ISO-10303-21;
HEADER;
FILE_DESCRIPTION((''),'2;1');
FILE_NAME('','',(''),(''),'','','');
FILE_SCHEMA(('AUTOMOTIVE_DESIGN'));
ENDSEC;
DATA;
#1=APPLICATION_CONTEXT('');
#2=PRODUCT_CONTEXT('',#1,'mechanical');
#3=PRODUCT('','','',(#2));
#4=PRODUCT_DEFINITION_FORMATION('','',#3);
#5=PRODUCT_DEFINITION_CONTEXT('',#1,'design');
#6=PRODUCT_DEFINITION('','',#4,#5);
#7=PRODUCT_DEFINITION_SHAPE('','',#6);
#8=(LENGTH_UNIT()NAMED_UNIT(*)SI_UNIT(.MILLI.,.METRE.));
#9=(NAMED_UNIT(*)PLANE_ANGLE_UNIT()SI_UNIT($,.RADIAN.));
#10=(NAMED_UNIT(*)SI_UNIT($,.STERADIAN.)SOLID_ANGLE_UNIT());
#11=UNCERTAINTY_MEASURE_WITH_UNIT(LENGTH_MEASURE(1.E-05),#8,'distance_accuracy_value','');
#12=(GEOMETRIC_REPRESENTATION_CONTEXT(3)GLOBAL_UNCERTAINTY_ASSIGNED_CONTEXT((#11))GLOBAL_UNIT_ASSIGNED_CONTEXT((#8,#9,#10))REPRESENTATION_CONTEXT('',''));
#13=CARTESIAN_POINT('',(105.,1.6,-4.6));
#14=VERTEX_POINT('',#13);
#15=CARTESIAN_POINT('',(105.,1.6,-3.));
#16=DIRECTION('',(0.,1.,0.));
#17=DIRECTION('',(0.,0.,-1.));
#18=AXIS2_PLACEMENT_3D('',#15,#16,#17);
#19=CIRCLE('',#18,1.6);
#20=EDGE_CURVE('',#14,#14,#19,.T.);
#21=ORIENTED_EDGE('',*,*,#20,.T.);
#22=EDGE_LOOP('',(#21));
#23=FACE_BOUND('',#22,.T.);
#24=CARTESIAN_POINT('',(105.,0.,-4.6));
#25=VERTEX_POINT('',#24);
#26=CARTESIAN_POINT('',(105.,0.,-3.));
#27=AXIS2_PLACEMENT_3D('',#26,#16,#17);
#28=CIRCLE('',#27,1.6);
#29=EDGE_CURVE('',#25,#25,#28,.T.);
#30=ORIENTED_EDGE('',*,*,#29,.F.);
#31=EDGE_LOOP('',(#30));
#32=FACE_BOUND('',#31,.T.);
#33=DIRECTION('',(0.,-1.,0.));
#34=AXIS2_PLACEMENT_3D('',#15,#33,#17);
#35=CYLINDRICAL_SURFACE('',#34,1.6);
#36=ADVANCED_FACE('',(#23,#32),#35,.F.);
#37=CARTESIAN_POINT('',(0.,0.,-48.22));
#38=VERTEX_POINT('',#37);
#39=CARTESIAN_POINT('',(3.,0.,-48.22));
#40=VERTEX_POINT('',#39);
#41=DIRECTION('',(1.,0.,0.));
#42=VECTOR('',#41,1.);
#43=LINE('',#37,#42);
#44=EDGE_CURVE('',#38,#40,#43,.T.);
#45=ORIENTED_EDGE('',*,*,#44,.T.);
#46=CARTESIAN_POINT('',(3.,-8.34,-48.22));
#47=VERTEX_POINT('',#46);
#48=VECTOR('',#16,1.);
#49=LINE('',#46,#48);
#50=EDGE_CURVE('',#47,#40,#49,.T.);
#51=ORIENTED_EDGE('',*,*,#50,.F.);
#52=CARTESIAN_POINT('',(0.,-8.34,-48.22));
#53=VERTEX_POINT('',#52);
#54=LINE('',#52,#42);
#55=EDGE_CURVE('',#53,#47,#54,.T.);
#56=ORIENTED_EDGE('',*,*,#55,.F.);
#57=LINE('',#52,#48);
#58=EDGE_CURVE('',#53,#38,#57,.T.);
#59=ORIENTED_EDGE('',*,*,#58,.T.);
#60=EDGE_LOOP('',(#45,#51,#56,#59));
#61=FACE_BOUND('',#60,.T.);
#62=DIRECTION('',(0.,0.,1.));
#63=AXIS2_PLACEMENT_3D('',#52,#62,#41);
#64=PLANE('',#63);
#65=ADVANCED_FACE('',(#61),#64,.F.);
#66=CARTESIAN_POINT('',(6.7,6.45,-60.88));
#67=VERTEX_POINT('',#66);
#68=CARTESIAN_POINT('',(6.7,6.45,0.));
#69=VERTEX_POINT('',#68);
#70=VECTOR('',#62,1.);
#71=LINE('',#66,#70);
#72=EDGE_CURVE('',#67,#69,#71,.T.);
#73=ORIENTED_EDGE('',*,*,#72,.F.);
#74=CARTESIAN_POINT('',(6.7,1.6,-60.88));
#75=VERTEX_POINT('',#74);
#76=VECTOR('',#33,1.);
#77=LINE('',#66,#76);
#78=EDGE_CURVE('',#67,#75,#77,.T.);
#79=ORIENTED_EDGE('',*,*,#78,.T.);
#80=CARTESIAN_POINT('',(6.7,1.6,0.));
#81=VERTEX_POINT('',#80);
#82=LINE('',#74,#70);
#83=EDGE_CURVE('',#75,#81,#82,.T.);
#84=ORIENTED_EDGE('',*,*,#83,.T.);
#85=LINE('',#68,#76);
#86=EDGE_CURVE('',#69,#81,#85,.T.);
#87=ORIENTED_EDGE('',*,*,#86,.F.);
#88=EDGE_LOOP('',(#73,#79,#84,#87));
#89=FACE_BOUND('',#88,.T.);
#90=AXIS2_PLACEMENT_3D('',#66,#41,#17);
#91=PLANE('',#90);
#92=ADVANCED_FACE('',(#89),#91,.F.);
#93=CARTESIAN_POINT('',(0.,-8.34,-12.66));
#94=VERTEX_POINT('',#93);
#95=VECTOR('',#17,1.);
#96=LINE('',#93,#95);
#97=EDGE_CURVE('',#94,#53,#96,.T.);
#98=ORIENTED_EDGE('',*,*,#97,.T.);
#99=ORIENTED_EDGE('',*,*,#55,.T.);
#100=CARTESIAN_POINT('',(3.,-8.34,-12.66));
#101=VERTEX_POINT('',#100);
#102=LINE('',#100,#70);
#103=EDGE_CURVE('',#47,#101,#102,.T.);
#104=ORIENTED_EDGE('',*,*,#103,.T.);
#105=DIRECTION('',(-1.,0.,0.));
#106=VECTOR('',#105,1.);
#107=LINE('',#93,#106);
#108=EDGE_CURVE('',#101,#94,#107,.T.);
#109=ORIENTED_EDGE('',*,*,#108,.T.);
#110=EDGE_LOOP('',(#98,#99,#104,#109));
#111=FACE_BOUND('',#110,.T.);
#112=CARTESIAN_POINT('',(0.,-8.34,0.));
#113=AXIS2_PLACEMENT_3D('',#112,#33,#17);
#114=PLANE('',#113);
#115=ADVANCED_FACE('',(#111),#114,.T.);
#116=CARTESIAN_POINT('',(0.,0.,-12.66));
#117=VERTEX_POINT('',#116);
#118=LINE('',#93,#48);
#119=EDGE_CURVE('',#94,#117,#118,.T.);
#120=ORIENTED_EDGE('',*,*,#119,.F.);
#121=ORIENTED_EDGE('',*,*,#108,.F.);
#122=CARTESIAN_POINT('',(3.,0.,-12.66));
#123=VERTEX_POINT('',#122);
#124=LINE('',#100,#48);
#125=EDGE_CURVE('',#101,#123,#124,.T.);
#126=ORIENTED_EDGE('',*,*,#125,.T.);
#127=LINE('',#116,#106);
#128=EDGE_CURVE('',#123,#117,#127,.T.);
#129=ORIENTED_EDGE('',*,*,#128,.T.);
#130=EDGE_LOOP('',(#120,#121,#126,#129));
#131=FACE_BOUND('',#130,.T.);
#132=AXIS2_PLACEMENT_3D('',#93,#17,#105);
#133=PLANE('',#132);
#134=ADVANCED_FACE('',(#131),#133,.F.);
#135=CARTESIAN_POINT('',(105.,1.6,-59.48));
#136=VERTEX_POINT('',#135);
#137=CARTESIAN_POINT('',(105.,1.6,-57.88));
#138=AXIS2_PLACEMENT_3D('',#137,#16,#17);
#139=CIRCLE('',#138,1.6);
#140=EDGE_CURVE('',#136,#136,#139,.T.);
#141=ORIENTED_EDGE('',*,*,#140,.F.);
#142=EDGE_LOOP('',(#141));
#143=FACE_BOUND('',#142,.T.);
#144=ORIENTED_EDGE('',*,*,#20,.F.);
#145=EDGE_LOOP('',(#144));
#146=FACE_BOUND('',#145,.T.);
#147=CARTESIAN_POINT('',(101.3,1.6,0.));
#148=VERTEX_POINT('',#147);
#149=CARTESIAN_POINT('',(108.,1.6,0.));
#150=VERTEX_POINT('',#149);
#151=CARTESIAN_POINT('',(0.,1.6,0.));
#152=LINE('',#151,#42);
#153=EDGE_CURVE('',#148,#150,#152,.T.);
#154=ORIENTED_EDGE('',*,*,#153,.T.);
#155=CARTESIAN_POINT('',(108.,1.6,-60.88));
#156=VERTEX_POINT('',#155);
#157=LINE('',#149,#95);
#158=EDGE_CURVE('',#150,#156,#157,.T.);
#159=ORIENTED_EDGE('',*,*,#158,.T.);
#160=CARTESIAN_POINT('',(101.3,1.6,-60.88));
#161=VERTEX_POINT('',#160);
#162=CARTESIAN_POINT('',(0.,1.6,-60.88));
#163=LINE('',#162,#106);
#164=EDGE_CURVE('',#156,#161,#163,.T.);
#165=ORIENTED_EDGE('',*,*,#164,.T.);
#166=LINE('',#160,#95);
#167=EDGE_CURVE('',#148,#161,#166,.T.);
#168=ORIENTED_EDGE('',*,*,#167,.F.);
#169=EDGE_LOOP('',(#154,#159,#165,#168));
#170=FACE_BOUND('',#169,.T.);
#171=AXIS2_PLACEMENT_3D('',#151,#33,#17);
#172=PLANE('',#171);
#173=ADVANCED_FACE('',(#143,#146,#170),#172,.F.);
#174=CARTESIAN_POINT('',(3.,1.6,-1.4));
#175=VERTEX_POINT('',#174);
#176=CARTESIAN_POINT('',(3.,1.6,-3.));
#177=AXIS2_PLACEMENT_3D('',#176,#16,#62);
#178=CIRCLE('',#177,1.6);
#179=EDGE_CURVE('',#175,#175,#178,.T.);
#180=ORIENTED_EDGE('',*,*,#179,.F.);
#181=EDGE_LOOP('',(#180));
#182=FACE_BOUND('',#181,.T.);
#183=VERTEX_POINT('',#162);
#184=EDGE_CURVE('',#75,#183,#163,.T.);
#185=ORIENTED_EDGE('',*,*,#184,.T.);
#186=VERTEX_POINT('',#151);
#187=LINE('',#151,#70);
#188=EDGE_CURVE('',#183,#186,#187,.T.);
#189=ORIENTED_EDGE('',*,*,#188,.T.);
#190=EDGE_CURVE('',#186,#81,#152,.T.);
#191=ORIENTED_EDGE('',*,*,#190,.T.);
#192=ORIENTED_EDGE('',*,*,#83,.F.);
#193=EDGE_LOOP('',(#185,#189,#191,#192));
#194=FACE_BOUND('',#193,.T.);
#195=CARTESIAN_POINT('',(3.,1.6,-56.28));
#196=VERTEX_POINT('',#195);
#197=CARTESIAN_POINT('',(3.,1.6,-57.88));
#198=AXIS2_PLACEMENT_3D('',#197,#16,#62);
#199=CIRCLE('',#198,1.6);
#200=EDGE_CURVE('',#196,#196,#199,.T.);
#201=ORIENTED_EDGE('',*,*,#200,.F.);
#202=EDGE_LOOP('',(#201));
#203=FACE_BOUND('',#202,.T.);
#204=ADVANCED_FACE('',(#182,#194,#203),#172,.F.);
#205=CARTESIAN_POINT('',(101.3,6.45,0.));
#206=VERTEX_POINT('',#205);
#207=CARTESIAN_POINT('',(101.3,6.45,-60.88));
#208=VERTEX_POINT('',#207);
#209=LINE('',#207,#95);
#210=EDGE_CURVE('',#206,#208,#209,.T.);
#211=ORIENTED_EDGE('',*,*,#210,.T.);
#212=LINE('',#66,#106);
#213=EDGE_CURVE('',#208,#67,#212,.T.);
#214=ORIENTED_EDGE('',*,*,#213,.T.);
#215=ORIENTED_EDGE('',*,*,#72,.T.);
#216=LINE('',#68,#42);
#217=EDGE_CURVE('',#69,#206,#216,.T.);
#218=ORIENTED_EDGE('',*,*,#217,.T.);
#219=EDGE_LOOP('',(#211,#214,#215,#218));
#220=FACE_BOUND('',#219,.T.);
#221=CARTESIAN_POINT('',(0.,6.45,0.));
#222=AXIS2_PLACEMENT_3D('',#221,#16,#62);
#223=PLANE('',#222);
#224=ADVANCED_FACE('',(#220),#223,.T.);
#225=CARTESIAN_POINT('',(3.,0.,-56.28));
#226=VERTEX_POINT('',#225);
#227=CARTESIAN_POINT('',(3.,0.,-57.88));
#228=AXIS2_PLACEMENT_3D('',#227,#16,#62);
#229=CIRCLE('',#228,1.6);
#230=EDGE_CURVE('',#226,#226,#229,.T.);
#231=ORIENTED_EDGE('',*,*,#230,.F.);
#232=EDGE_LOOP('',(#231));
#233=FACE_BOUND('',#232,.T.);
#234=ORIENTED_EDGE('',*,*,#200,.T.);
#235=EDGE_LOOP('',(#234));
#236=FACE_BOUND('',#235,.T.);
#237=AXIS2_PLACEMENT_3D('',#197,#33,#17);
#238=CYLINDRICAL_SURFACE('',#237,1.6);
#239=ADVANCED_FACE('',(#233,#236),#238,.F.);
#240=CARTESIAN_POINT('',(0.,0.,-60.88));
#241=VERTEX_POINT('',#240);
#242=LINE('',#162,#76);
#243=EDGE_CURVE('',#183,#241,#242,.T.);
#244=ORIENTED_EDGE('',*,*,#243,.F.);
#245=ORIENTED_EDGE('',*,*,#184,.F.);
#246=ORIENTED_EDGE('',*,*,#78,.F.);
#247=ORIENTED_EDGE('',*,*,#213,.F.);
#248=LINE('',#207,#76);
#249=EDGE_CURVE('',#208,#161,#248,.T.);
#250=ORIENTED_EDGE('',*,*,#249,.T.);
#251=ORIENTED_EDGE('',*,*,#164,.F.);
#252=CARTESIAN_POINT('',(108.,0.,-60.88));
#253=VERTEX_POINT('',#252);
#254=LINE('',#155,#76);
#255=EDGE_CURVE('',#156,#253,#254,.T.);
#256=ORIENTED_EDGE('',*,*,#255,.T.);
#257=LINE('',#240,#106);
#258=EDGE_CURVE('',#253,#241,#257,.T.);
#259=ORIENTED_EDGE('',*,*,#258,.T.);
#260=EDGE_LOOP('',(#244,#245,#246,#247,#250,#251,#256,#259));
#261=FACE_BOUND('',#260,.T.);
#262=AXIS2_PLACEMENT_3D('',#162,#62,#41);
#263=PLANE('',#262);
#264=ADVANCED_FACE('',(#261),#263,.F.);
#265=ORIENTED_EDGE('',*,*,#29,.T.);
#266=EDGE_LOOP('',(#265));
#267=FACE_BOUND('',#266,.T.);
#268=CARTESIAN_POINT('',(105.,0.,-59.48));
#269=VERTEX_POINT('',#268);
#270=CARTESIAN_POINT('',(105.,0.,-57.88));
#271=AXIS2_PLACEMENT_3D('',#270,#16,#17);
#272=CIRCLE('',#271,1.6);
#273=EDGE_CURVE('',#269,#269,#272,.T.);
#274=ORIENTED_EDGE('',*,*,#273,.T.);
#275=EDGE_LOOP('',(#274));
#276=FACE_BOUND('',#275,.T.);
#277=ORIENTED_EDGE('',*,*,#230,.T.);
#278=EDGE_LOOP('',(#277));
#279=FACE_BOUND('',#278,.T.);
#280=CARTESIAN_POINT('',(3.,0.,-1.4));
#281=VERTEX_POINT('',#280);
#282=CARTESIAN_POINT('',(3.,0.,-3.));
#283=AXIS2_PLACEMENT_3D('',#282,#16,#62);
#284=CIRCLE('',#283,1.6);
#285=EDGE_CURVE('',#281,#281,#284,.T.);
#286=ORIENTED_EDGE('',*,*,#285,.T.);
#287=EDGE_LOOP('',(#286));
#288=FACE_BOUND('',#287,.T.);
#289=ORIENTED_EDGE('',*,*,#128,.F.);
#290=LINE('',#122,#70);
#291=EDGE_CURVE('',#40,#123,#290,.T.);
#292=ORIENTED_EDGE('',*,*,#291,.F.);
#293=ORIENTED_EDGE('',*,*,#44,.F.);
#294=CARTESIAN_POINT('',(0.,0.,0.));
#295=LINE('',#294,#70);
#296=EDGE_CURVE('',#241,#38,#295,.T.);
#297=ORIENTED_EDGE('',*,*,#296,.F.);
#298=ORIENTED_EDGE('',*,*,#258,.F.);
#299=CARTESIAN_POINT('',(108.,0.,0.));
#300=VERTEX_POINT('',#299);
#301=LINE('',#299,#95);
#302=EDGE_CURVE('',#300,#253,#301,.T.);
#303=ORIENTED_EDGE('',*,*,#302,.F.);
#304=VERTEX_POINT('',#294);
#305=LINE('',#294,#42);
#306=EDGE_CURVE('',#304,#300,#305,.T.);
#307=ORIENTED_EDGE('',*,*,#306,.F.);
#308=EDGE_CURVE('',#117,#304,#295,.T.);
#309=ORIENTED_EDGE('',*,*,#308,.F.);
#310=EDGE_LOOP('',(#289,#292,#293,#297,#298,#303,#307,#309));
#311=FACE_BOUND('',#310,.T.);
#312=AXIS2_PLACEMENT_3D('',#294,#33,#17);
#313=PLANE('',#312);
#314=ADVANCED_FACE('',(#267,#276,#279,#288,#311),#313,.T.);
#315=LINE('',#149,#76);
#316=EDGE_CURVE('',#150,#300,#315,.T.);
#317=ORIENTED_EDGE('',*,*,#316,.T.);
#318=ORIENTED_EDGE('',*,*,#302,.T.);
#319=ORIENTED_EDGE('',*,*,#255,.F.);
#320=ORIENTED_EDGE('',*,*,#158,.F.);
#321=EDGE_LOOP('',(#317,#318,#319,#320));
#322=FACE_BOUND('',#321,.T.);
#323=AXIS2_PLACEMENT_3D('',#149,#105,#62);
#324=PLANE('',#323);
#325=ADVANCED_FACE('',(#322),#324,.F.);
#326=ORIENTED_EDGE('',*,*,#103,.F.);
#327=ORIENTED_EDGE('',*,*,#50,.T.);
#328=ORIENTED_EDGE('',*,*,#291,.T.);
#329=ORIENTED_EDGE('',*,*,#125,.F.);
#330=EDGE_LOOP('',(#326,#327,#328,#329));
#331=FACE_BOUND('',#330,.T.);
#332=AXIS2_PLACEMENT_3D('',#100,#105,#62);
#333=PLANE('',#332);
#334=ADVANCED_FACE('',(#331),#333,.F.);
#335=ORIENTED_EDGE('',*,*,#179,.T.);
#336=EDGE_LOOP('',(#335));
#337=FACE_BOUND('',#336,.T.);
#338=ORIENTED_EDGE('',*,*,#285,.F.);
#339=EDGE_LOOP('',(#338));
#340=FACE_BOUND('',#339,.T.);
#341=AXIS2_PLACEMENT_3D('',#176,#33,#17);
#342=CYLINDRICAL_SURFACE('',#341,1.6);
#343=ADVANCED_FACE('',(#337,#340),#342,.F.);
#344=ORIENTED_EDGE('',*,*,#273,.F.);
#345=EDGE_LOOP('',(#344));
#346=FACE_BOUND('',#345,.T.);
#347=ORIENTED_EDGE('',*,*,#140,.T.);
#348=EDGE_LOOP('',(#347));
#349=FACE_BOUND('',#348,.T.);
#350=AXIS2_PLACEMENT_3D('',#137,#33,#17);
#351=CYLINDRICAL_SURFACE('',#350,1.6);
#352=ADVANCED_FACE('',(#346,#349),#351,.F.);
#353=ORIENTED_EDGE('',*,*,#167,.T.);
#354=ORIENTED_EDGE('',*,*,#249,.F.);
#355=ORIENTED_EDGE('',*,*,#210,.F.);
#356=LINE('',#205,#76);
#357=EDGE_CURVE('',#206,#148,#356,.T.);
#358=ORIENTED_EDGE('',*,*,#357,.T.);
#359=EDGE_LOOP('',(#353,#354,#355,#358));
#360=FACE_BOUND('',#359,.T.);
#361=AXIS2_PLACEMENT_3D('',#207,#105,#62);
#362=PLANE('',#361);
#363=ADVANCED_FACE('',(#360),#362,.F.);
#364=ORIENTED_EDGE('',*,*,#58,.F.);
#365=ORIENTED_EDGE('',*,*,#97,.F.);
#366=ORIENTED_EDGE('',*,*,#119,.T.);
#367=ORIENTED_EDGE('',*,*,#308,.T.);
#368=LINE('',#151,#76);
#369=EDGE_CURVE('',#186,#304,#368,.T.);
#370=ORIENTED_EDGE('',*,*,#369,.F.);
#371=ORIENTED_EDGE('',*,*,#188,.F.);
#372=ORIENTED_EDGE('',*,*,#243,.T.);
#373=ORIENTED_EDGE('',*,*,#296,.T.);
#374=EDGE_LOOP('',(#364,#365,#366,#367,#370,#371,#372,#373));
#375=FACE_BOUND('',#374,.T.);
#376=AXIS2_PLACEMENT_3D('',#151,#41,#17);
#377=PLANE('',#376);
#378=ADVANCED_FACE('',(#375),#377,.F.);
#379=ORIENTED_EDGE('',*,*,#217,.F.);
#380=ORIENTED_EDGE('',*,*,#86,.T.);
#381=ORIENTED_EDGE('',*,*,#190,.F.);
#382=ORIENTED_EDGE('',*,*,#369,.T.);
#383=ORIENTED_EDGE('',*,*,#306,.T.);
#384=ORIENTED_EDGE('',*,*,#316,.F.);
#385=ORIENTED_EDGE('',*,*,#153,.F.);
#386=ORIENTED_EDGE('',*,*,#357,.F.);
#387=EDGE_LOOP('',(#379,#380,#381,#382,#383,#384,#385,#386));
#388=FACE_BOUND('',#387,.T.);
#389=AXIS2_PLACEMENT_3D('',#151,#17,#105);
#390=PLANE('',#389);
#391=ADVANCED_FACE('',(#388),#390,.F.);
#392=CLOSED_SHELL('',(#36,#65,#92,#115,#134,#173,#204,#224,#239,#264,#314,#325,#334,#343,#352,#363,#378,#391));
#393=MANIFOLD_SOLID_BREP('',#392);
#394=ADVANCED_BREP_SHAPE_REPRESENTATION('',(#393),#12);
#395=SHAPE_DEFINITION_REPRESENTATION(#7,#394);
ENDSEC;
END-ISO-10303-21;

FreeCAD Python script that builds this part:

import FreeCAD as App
import Part
import Sketcher
from FreeCAD import Vector
Q = App.Units.Quantity

doc = App.newDocument("Part")
body = doc.addObject("PartDesign::Body", "Body")

# Sketch on XZ plane
sketch1 = body.newObject("Sketcher::SketchObject", "Sketch")
sketch1.AttachmentSupport = (doc.getObject("XZ_Plane"), [""])
sketch1.MapMode = "FlatFace"
sketch1.addGeometry(Part.LineSegment(Vector(0, -60.9, 0), Vector(0, 0, 0)), False)
sketch1.addGeometry(Part.LineSegment(Vector(0, 0, 0), Vector(108, 0, 0)), False)
sketch1.addGeometry(Part.LineSegment(Vector(108, 0, 0), Vector(108, -60.9, 0)), False)
sketch1.addGeometry(Part.LineSegment(Vector(108, -60.9, 0), Vector(0, -60.9, 0)), False)
sketch1.addGeometry(Part.Circle(Vector(3, -3, 0), Vector(0, 0, 1), 1.6), False)
sketch1.addGeometry(Part.Circle(Vector(105, -3, 0), Vector(0, 0, 1), 1.6), False)
sketch1.addGeometry(Part.Circle(Vector(3, -57.9, 0), Vector(0, 0, 1), 1.6), False)
sketch1.addGeometry(Part.Circle(Vector(105, -57.9, 0), Vector(0, 0, 1), 1.6), False)
sketch1.addConstraint(Sketcher.Constraint("Coincident", 0, 2, 1, 1))
sketch1.addConstraint(Sketcher.Constraint("Coincident", 1, 2, 2, 1))
sketch1.addConstraint(Sketcher.Constraint("Coincident", 2, 2, 3, 1))
sketch1.addConstraint(Sketcher.Constraint("Coincident", 3, 2, 0, 1))
sketch1.addConstraint(Sketcher.Constraint("Vertical", 0))
sketch1.addConstraint(Sketcher.Constraint("Horizontal", 1))
sketch1.addConstraint(Sketcher.Constraint("Vertical", 2))
sketch1.addConstraint(Sketcher.Constraint("Horizontal", 3))
sketch1.addConstraint(Sketcher.Constraint("Coincident", 0, 2, -1, 1))
sketch1.addConstraint(Sketcher.Constraint("Equal", 4, 5))
sketch1.addConstraint(Sketcher.Constraint("Equal", 5, 6))
sketch1.addConstraint(Sketcher.Constraint("Equal", 6, 7))
sketch1.addConstraint(Sketcher.Constraint("Horizontal", 4, 3, 5, 3))
sketch1.addConstraint(Sketcher.Constraint("Horizontal", 6, 3, 7, 3))
sketch1.addConstraint(Sketcher.Constraint("Vertical", 4, 3, 6, 3))
sketch1.addConstraint(Sketcher.Constraint("Vertical", 5, 3, 7, 3))
sketch1.addConstraint(Sketcher.Constraint("Diameter", 4, Q("3.2 mm")))
sketch1.addConstraint(Sketcher.Constraint("DistanceX", 1, 1, 1, 2, Q("108 mm")))
sketch1.addConstraint(Sketcher.Constraint("DistanceX", -1, 1, 4, 3, Q("3 mm")))
sketch1.addConstraint(Sketcher.Constraint("DistanceY", 4, 3, -1, 1, Q("3 mm")))
sketch1.addConstraint(Sketcher.Constraint("DistanceX", -1, 1, 5, 3, Q("105 mm")))
sketch1.addConstraint(Sketcher.Constraint("DistanceY", 2, 2, 7, 3, Q("3 mm")))
sketch1.addConstraint(Sketcher.Constraint("DistanceY", 0, 1, 0, 2, Q("60.88 mm")))
pad1 = body.newObject("PartDesign::Pad", "Pad")
pad1.Profile = sketch1
pad1.Length = 1.6
pad1.Reversed = True

# Sketch on XZ plane
sketch2 = body.newObject("Sketcher::SketchObject", "Sketch001")
sketch2.AttachmentSupport = (doc.getObject("XZ_Plane"), [""])
sketch2.MapMode = "FlatFace"
sketch2.AttachmentOffset = App.Placement(Vector(0, 0, -1.6), App.Rotation())
sketch2.addGeometry(Part.LineSegment(Vector(7, -61, 0), Vector(7, 0, 0)), False)
sketch2.addGeometry(Part.LineSegment(Vector(7, 0, 0), Vector(101, 0, 0)), False)
sketch2.addGeometry(Part.LineSegment(Vector(101, 0, 0), Vector(101, -61, 0)), False)
sketch2.addGeometry(Part.LineSegment(Vector(101, -61, 0), Vector(7, -61, 0)), False)
sketch2.addConstraint(Sketcher.Constraint("Coincident", 0, 2, 1, 1))
sketch2.addConstraint(Sketcher.Constraint("Coincident", 1, 2, 2, 1))
sketch2.addConstraint(Sketcher.Constraint("Coincident", 2, 2, 3, 1))
sketch2.addConstraint(Sketcher.Constraint("Coincident", 3, 2, 0, 1))
sketch2.addConstraint(Sketcher.Constraint("Vertical", 0))
sketch2.addConstraint(Sketcher.Constraint("Horizontal", 1))
sketch2.addConstraint(Sketcher.Constraint("Vertical", 2))
sketch2.addConstraint(Sketcher.Constraint("Horizontal", 3))
sketch2.addConstraint(Sketcher.Constraint("PointOnObject", 0, 2, -1))
sketch2.addConstraint(Sketcher.Constraint("DistanceX", 1, 1, 1, 2, Q("94.6 mm")))
sketch2.addConstraint(Sketcher.Constraint("DistanceY", 0, 1, 0, 2, Q("60.88 mm")))
sketch2.addConstraint(Sketcher.Constraint("DistanceX", -1, 1, 0, 2, Q("6.7 mm")))
pad2 = body.newObject("PartDesign::Pad", "Pad001")
pad2.Profile = sketch2
pad2.Length = 4.85
pad2.Reversed = True

# Sketch on XZ plane
sketch3 = body.newObject("Sketcher::SketchObject", "Sketch002")
sketch3.AttachmentSupport = (doc.getObject("XZ_Plane"), [""])
sketch3.MapMode = "FlatFace"
sketch3.addGeometry(Part.LineSegment(Vector(0, -12.7, 0), Vector(0, -48.2, 0)), False)
sketch3.addGeometry(Part.LineSegment(Vector(0, -48.2, 0), Vector(3, -48.2, 0)), False)
sketch3.addGeometry(Part.LineSegment(Vector(3, -48.2, 0), Vector(3, -12.7, 0)), False)
sketch3.addGeometry(Part.LineSegment(Vector(3, -12.7, 0), Vector(0, -12.7, 0)), False)
sketch3.addConstraint(Sketcher.Constraint("Coincident", 0, 2, 1, 1))
sketch3.addConstraint(Sketcher.Constraint("Coincident", 1, 2, 2, 1))
sketch3.addConstraint(Sketcher.Constraint("Coincident", 2, 2, 3, 1))
sketch3.addConstraint(Sketcher.Constraint("Coincident", 3, 2, 0, 1))
sketch3.addConstraint(Sketcher.Constraint("Vertical", 0))
sketch3.addConstraint(Sketcher.Constraint("Horizontal", 1))
sketch3.addConstraint(Sketcher.Constraint("Vertical", 2))
sketch3.addConstraint(Sketcher.Constraint("Horizontal", 3))
sketch3.addConstraint(Sketcher.Constraint("PointOnObject", 0, 2, -2))
sketch3.addConstraint(Sketcher.Constraint("DistanceX", 1, 1, 1, 2, Q("3 mm")))
sketch3.addConstraint(Sketcher.Constraint("DistanceY", 0, 2, 0, 1, Q("35.56 mm")))
sketch3.addConstraint(Sketcher.Constraint("DistanceY", 0, 2, -1, 1, Q("48.22 mm")))
pad3 = body.newObject("PartDesign::Pad", "Pad002")
pad3.Profile = sketch3
pad3.Length = 8.34

doc.recompute()
